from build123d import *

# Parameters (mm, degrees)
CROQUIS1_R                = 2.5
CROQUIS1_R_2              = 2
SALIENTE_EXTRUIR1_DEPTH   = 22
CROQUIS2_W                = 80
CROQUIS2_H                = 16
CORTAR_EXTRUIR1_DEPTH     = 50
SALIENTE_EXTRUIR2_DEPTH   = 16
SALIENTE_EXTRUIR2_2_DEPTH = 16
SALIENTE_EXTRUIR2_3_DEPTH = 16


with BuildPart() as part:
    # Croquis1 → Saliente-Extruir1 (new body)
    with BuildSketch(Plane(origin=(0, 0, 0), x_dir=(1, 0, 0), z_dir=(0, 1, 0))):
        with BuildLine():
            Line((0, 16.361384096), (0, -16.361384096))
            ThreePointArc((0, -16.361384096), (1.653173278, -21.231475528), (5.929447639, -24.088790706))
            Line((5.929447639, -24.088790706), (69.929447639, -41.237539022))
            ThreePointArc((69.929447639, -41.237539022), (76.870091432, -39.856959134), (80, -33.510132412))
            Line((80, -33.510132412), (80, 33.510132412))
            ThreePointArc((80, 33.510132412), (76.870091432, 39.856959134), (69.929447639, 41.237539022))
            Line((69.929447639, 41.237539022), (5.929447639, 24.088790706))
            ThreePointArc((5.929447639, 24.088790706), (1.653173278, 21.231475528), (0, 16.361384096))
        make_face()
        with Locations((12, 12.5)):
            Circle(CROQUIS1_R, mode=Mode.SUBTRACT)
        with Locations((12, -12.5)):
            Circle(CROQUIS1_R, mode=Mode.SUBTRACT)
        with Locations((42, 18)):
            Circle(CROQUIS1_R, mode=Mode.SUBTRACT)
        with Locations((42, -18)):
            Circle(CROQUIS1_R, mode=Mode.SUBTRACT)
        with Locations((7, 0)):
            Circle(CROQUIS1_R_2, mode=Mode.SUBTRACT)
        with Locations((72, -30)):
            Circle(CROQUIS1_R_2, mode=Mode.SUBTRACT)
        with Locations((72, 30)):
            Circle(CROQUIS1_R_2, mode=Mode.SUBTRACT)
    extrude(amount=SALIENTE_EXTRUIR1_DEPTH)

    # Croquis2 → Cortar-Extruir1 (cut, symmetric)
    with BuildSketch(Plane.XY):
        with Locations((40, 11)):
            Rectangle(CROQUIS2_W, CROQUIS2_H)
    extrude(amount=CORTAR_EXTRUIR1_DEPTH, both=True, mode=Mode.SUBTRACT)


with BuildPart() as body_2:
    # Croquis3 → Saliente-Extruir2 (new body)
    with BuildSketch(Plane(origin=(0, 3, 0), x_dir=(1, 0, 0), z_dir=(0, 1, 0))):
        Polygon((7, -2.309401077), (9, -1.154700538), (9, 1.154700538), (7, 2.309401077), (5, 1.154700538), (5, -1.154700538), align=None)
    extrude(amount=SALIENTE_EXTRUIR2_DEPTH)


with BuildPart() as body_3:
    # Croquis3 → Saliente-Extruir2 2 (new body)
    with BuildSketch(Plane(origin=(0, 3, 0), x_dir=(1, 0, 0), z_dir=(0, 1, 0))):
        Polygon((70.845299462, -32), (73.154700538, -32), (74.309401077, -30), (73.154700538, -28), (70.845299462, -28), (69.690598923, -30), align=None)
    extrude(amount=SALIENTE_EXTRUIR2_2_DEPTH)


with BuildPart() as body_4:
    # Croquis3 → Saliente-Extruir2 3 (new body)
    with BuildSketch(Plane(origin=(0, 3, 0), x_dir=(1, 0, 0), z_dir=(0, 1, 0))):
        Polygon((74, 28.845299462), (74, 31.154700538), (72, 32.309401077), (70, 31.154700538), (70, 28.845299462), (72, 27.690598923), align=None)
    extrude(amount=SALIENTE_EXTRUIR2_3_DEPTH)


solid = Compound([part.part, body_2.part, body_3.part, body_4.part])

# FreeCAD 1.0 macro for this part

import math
import FreeCAD as App
import Part
import Sketcher

V = App.Vector
Q = App.Units.Quantity

doc = App.newDocument("Part")
body = doc.addObject("PartDesign::Body", "Body")
body.AllowCompound = True

sketch1 = body.newObject("Sketcher::SketchObject", "Sketch")
sketch1.AttachmentSupport = (doc.getObject("XZ_Plane"), [""])
sketch1.MapMode = "FlatFace"
sketch1.addGeometry(Part.LineSegment(V(0, -16.4, 0), V(0, 16.4, 0)), False)
sketch1.addGeometry(Part.ArcOfCircle(Part.Circle(V(8, 16.4, 0), V(0, 0, 1), 8), math.radians(105), math.radians(180)), False)
sketch1.addGeometry(Part.LineSegment(V(5.9, 24.1, 0), V(69.9, 41.2, 0)), False)
sketch1.addGeometry(Part.ArcOfCircle(Part.Circle(V(72, 33.5, 0), V(0, 0, 1), 8), math.radians(0), math.radians(105)), False)
sketch1.addGeometry(Part.LineSegment(V(80, 33.5, 0), V(80, -33.5, 0)), False)
sketch1.addGeometry(Part.ArcOfCircle(Part.Circle(V(72, -33.5, 0), V(0, 0, 1), 8), math.radians(-105), math.radians(0)), False)
sketch1.addGeometry(Part.LineSegment(V(69.9, -41.2, 0), V(5.9, -24.1, 0)), False)
sketch1.addGeometry(Part.ArcOfCircle(Part.Circle(V(8, -16.4, 0), V(0, 0, 1), 8), math.radians(-180), math.radians(-105)), False)
sketch1.addGeometry(Part.Circle(V(12, 12.5, 0), V(0, 0, 1), 2.5), False)
sketch1.addGeometry(Part.Circle(V(42, 18, 0), V(0, 0, 1), 2.5), False)
sketch1.addGeometry(Part.Circle(V(72, 30, 0), V(0, 0, 1), 2), False)
sketch1.addGeometry(Part.Circle(V(7, 0, 0), V(0, 0, 1), 2), False)
sketch1.addGeometry(Part.Circle(V(12, -12.5, 0), V(0, 0, 1), 2.5), False)
sketch1.addGeometry(Part.Circle(V(42, -18, 0), V(0, 0, 1), 2.5), False)
sketch1.addGeometry(Part.Circle(V(72, -30, 0), V(0, 0, 1), 2), False)
sketch1.addConstraint(Sketcher.Constraint("Tangent", 0, 2, 1, 2))
sketch1.addConstraint(Sketcher.Constraint("Tangent", 1, 1, 2, 1))
sketch1.addConstraint(Sketcher.Constraint("Tangent", 2, 2, 3, 2))
sketch1.addConstraint(Sketcher.Constraint("Tangent", 3, 1, 4, 1))
sketch1.addConstraint(Sketcher.Constraint("Tangent", 4, 2, 5, 2))
sketch1.addConstraint(Sketcher.Constraint("Tangent", 5, 1, 6, 1))
sketch1.addConstraint(Sketcher.Constraint("Tangent", 6, 2, 7, 2))
sketch1.addConstraint(Sketcher.Constraint("Tangent", 7, 1, 0, 1))
sketch1.addConstraint(Sketcher.Constraint("Vertical", 0))
sketch1.addConstraint(Sketcher.Constraint("Vertical", 4))
sketch1.addConstraint(Sketcher.Constraint("Equal", 1, 3))
sketch1.addConstraint(Sketcher.Constraint("Equal", 3, 5))
sketch1.addConstraint(Sketcher.Constraint("Equal", 5, 7))
sketch1.addConstraint(Sketcher.Constraint("Equal", 8, 9))
sketch1.addConstraint(Sketcher.Constraint("Equal", 10, 11))
sketch1.addConstraint(Sketcher.Constraint("Equal", 9, 12))
sketch1.addConstraint(Sketcher.Constraint("Equal", 12, 13))
sketch1.addConstraint(Sketcher.Constraint("Equal", 11, 14))
sketch1.addConstraint(Sketcher.Constraint("Symmetric", 0, 2, 7, 1, -1, 1))
sketch1.addConstraint(Sketcher.Constraint("Symmetric", 8, 3, 12, 3, -1))
sketch1.addConstraint(Sketcher.Constraint("Symmetric", 9, 3, 13, 3, -1))
sketch1.addConstraint(Sketcher.Constraint("Symmetric", 10, 3, 14, 3, -1))
sketch1.addConstraint(Sketcher.Constraint("PointOnObject", 11, 3, -1))
sketch1.addConstraint(Sketcher.Constraint("Vertical", 5, 3, 10, 3))
sketch1.addConstraint(Sketcher.Constraint("Vertical", 2, 2, 5, 1))
sketch1.addConstraint(Sketcher.Constraint("Diameter", 8, Q("5 mm")))
sketch1.addConstraint(Sketcher.Constraint("Diameter", 10, Q("4 mm")))
sketch1.addConstraint(Sketcher.Constraint("Radius", 1, Q("8 mm")))
sketch1.addConstraint(Sketcher.Constraint("Angle", 2, Q("15 deg")))
sketch1.addConstraint(Sketcher.Constraint("DistanceX", -1, 1, 3, 3, Q("72 mm")))
sketch1.addConstraint(Sketcher.Constraint("DistanceX", -1, 1, 8, 3, Q("12 mm")))
sketch1.addConstraint(Sketcher.Constraint("DistanceX", -1, 1, 9, 3, Q("42 mm")))
sketch1.addConstraint(Sketcher.Constraint("DistanceY", -1, 1, 9, 3, Q("18 mm")))
sketch1.addConstraint(Sketcher.Constraint("DistanceY", -1, 1, 10, 3, Q("30 mm")))
sketch1.addConstraint(Sketcher.Constraint("DistanceX", -1, 1, 11, 3, Q("7 mm")))
sketch1.addConstraint(Sketcher.Constraint("DistanceY", 12, 3, 8, 3, Q("25 mm")))
sketch1.addConstraint(Sketcher.Constraint("DistanceY", 0, 1, 0, 2, Q("32.722768 mm")))
pad1 = body.newObject("PartDesign::Pad", "Pad")
pad1.Profile = sketch1
pad1.Length = 22
pad1.Reversed = True

sketch2 = body.newObject("Sketcher::SketchObject", "Sketch001")
sketch2.AttachmentSupport = (doc.getObject("XY_Plane"), [""])
sketch2.MapMode = "FlatFace"
sketch2.addGeometry(Part.LineSegment(V(0, 19, 0), V(0, 3, 0)), False)
sketch2.addGeometry(Part.LineSegment(V(0, 3, 0), V(80, 3, 0)), False)
sketch2.addGeometry(Part.LineSegment(V(80, 3, 0), V(80, 19, 0)), False)
sketch2.addGeometry(Part.LineSegment(V(80, 19, 0), V(0, 19, 0)), False)
sketch2.addConstraint(Sketcher.Constraint("Coincident", 0, 2, 1, 1))
sketch2.addConstraint(Sketcher.Constraint("Coincident", 1, 2, 2, 1))
sketch2.addConstraint(Sketcher.Constraint("Coincident", 2, 2, 3, 1))
sketch2.addConstraint(Sketcher.Constraint("Coincident", 3, 2, 0, 1))
sketch2.addConstraint(Sketcher.Constraint("Vertical", 0))
sketch2.addConstraint(Sketcher.Constraint("Horizontal", 1))
sketch2.addConstraint(Sketcher.Constraint("Vertical", 2))
sketch2.addConstraint(Sketcher.Constraint("Horizontal", 3))
sketch2.addConstraint(Sketcher.Constraint("PointOnObject", 0, 2, -2))
sketch2.addConstraint(Sketcher.Constraint("DistanceX", 1, 1, 1, 2, Q("80 mm")))
sketch2.addConstraint(Sketcher.Constraint("DistanceY", 0, 2, 0, 1, Q("16 mm")))
sketch2.addConstraint(Sketcher.Constraint("DistanceY", -1, 1, 0, 2, Q("3 mm")))
pocket1 = body.newObject("PartDesign::Pocket", "Pocket")
pocket1.Profile = sketch2
pocket1.Length = 100
pocket1.Midplane = True
body2 = doc.addObject("PartDesign::Body", "Body001")

sketch3 = body2.newObject("Sketcher::SketchObject", "Sketch002")
sketch3.AttachmentSupport = (doc.getObject("XZ_Plane001"), [""])
sketch3.MapMode = "FlatFace"
sketch3.AttachmentOffset = App.Placement(V(0, 0, -3), App.Rotation())
sketch3.addGeometry(Part.LineSegment(V(7, 2.3, 0), V(9, 1.2, 0)), False)
sketch3.addGeometry(Part.LineSegment(V(9, 1.2, 0), V(9, -1.2, 0)), False)
sketch3.addGeometry(Part.LineSegment(V(9, -1.2, 0), V(7, -2.3, 0)), False)
sketch3.addGeometry(Part.LineSegment(V(7, -2.3, 0), V(5, -1.2, 0)), False)
sketch3.addGeometry(Part.LineSegment(V(5, -1.2, 0), V(5, 1.2, 0)), False)
sketch3.addGeometry(Part.LineSegment(V(5, 1.2, 0), V(7, 2.3, 0)), False)
sketch3.addConstraint(Sketcher.Constraint("Coincident", 0, 2, 1, 1))
sketch3.addConstraint(Sketcher.Constraint("Coincident", 1, 2, 2, 1))
sketch3.addConstraint(Sketcher.Constraint("Coincident", 2, 2, 3, 1))
sketch3.addConstraint(Sketcher.Constraint("Coincident", 3, 2, 4, 1))
sketch3.addConstraint(Sketcher.Constraint("Coincident", 4, 2, 5, 1))
sketch3.addConstraint(Sketcher.Constraint("Coincident", 5, 2, 0, 1))
sketch3.addConstraint(Sketcher.Constraint("Vertical", 1))
sketch3.addConstraint(Sketcher.Constraint("Vertical", 4))
sketch3.addConstraint(Sketcher.Constraint("Symmetric", 2, 2, 5, 2, -1))
sketch3.addConstraint(Sketcher.Constraint("Parallel", 0, 3))
sketch3.addConstraint(Sketcher.Constraint("Parallel", 2, 5))
sketch3.addConstraint(Sketcher.Constraint("Horizontal", 1, 2, 3, 2))
sketch3.addConstraint(Sketcher.Constraint("Horizontal", 0, 2, 4, 2))
sketch3.addConstraint(Sketcher.Constraint("Angle", 0, Q("-30 deg")))
sketch3.addConstraint(Sketcher.Constraint("DistanceX", -1, 1, 0, 2, Q("9 mm")))
sketch3.addConstraint(Sketcher.Constraint("DistanceX", -1, 1, 2, 2, Q("7 mm")))
sketch3.addConstraint(Sketcher.Constraint("DistanceY", 1, 2, 1, 1, Q("2.309401 mm")))
pad2 = body2.newObject("PartDesign::Pad", "Pad001")
pad2.Profile = sketch3
pad2.Length = 16
pad2.Reversed = True
body3 = doc.addObject("PartDesign::Body", "Body002")

sketch4 = body3.newObject("Sketcher::SketchObject", "Sketch003")
sketch4.AttachmentSupport = (doc.getObject("XZ_Plane002"), [""])
sketch4.MapMode = "FlatFace"
sketch4.AttachmentOffset = App.Placement(V(0, 0, -3), App.Rotation())
sketch4.addGeometry(Part.LineSegment(V(70.8, 32, 0), V(73.2, 32, 0)), False)
sketch4.addGeometry(Part.LineSegment(V(73.2, 32, 0), V(74.3, 30, 0)), False)
sketch4.addGeometry(Part.LineSegment(V(74.3, 30, 0), V(73.2, 28, 0)), False)
sketch4.addGeometry(Part.LineSegment(V(73.2, 28, 0), V(70.8, 28, 0)), False)
sketch4.addGeometry(Part.LineSegment(V(70.8, 28, 0), V(69.7, 30, 0)), False)
sketch4.addGeometry(Part.LineSegment(V(69.7, 30, 0), V(70.8, 32, 0)), False)
sketch4.addConstraint(Sketcher.Constraint("Coincident", 0, 2, 1, 1))
sketch4.addConstraint(Sketcher.Constraint("Coincident", 1, 2, 2, 1))
sketch4.addConstraint(Sketcher.Constraint("Coincident", 2, 2, 3, 1))
sketch4.addConstraint(Sketcher.Constraint("Coincident", 3, 2, 4, 1))
sketch4.addConstraint(Sketcher.Constraint("Coincident", 4, 2, 5, 1))
sketch4.addConstraint(Sketcher.Constraint("Coincident", 5, 2, 0, 1))
sketch4.addConstraint(Sketcher.Constraint("Horizontal", 0))
sketch4.addConstraint(Sketcher.Constraint("Horizontal", 3))
sketch4.addConstraint(Sketcher.Constraint("Parallel", 1, 4))
sketch4.addConstraint(Sketcher.Constraint("Parallel", 2, 5))
sketch4.addConstraint(Sketcher.Constraint("Horizontal", 1, 2, 4, 2))
sketch4.addConstraint(Sketcher.Constraint("Vertical", 0, 2, 2, 2))
sketch4.addConstraint(Sketcher.Constraint("Vertical", 3, 2, 5, 2))
sketch4.addConstraint(Sketcher.Constraint("Angle", 1, Q("-60 deg")))
sketch4.addConstraint(Sketcher.Constraint("DistanceY", -1, 1, 0, 2, Q("32 mm")))
sketch4.addConstraint(Sketcher.Constraint("DistanceY", -1, 1, 1, 2, Q("30 mm")))
sketch4.addConstraint(Sketcher.Constraint("DistanceX", 0, 1, 0, 2, Q("2.309401 mm")))
sketch4.addConstraint(Sketcher.Constraint("DistanceX", -1, 1, 0, 2, Q("73.154701 mm")))
pad3 = body3.newObject("PartDesign::Pad", "Pad002")
pad3.Profile = sketch4
pad3.Length = 16
pad3.Reversed = True
body4 = doc.addObject("PartDesign::Body", "Body003")

sketch5 = body4.newObject("Sketcher::SketchObject", "Sketch004")
sketch5.AttachmentSupport = (doc.getObject("XZ_Plane003"), [""])
sketch5.MapMode = "FlatFace"
sketch5.AttachmentOffset = App.Placement(V(0, 0, -3), App.Rotation())
sketch5.addGeometry(Part.LineSegment(V(74, -28.8, 0), V(74, -31.2, 0)), False)
sketch5.addGeometry(Part.LineSegment(V(74, -31.2, 0), V(72, -32.3, 0)), False)
sketch5.addGeometry(Part.LineSegment(V(72, -32.3, 0), V(70, -31.2, 0)), False)
sketch5.addGeometry(Part.LineSegment(V(70, -31.2, 0), V(70, -28.8, 0)), False)
sketch5.addGeometry(Part.LineSegment(V(70, -28.8, 0), V(72, -27.7, 0)), False)
sketch5.addGeometry(Part.LineSegment(V(72, -27.7, 0), V(74, -28.8, 0)), False)
sketch5.addConstraint(Sketcher.Constraint("Coincident", 0, 2, 1, 1))
sketch5.addConstraint(Sketcher.Constraint("Coincident", 1, 2, 2, 1))
sketch5.addConstraint(Sketcher.Constraint("Coincident", 2, 2, 3, 1))
sketch5.addConstraint(Sketcher.Constraint("Coincident", 3, 2, 4, 1))
sketch5.addConstraint(Sketcher.Constraint("Coincident", 4, 2, 5, 1))
sketch5.addConstraint(Sketcher.Constraint("Coincident", 5, 2, 0, 1))
sketch5.addConstraint(Sketcher.Constraint("Vertical", 0))
sketch5.addConstraint(Sketcher.Constraint("Vertical", 3))
sketch5.addConstraint(Sketcher.Constraint("Parallel", 1, 4))
sketch5.addConstraint(Sketcher.Constraint("Parallel", 2, 5))
sketch5.addConstraint(Sketcher.Constraint("Horizontal", 0, 2, 2, 2))
sketch5.addConstraint(Sketcher.Constraint("Horizontal", 3, 2, 5, 2))
sketch5.addConstraint(Sketcher.Constraint("Vertical", 1, 2, 4, 2))
sketch5.addConstraint(Sketcher.Constraint("Angle", 1, Q("-150 deg")))
sketch5.addConstraint(Sketcher.Constraint("DistanceX", -1, 1, 0, 2, Q("74 mm")))
sketch5.addConstraint(Sketcher.Constraint("DistanceX", -1, 1, 1, 2, Q("72 mm")))
sketch5.addConstraint(Sketcher.Constraint("DistanceY", 0, 2, 0, 1, Q("2.309401 mm")))
sketch5.addConstraint(Sketcher.Constraint("DistanceY", 0, 2, -1, 1, Q("31.154701 mm")))
pad4 = body4.newObject("PartDesign::Pad", "Pad003")
pad4.Profile = sketch5
pad4.Length = 16
pad4.Reversed = True

doc.recompute()
